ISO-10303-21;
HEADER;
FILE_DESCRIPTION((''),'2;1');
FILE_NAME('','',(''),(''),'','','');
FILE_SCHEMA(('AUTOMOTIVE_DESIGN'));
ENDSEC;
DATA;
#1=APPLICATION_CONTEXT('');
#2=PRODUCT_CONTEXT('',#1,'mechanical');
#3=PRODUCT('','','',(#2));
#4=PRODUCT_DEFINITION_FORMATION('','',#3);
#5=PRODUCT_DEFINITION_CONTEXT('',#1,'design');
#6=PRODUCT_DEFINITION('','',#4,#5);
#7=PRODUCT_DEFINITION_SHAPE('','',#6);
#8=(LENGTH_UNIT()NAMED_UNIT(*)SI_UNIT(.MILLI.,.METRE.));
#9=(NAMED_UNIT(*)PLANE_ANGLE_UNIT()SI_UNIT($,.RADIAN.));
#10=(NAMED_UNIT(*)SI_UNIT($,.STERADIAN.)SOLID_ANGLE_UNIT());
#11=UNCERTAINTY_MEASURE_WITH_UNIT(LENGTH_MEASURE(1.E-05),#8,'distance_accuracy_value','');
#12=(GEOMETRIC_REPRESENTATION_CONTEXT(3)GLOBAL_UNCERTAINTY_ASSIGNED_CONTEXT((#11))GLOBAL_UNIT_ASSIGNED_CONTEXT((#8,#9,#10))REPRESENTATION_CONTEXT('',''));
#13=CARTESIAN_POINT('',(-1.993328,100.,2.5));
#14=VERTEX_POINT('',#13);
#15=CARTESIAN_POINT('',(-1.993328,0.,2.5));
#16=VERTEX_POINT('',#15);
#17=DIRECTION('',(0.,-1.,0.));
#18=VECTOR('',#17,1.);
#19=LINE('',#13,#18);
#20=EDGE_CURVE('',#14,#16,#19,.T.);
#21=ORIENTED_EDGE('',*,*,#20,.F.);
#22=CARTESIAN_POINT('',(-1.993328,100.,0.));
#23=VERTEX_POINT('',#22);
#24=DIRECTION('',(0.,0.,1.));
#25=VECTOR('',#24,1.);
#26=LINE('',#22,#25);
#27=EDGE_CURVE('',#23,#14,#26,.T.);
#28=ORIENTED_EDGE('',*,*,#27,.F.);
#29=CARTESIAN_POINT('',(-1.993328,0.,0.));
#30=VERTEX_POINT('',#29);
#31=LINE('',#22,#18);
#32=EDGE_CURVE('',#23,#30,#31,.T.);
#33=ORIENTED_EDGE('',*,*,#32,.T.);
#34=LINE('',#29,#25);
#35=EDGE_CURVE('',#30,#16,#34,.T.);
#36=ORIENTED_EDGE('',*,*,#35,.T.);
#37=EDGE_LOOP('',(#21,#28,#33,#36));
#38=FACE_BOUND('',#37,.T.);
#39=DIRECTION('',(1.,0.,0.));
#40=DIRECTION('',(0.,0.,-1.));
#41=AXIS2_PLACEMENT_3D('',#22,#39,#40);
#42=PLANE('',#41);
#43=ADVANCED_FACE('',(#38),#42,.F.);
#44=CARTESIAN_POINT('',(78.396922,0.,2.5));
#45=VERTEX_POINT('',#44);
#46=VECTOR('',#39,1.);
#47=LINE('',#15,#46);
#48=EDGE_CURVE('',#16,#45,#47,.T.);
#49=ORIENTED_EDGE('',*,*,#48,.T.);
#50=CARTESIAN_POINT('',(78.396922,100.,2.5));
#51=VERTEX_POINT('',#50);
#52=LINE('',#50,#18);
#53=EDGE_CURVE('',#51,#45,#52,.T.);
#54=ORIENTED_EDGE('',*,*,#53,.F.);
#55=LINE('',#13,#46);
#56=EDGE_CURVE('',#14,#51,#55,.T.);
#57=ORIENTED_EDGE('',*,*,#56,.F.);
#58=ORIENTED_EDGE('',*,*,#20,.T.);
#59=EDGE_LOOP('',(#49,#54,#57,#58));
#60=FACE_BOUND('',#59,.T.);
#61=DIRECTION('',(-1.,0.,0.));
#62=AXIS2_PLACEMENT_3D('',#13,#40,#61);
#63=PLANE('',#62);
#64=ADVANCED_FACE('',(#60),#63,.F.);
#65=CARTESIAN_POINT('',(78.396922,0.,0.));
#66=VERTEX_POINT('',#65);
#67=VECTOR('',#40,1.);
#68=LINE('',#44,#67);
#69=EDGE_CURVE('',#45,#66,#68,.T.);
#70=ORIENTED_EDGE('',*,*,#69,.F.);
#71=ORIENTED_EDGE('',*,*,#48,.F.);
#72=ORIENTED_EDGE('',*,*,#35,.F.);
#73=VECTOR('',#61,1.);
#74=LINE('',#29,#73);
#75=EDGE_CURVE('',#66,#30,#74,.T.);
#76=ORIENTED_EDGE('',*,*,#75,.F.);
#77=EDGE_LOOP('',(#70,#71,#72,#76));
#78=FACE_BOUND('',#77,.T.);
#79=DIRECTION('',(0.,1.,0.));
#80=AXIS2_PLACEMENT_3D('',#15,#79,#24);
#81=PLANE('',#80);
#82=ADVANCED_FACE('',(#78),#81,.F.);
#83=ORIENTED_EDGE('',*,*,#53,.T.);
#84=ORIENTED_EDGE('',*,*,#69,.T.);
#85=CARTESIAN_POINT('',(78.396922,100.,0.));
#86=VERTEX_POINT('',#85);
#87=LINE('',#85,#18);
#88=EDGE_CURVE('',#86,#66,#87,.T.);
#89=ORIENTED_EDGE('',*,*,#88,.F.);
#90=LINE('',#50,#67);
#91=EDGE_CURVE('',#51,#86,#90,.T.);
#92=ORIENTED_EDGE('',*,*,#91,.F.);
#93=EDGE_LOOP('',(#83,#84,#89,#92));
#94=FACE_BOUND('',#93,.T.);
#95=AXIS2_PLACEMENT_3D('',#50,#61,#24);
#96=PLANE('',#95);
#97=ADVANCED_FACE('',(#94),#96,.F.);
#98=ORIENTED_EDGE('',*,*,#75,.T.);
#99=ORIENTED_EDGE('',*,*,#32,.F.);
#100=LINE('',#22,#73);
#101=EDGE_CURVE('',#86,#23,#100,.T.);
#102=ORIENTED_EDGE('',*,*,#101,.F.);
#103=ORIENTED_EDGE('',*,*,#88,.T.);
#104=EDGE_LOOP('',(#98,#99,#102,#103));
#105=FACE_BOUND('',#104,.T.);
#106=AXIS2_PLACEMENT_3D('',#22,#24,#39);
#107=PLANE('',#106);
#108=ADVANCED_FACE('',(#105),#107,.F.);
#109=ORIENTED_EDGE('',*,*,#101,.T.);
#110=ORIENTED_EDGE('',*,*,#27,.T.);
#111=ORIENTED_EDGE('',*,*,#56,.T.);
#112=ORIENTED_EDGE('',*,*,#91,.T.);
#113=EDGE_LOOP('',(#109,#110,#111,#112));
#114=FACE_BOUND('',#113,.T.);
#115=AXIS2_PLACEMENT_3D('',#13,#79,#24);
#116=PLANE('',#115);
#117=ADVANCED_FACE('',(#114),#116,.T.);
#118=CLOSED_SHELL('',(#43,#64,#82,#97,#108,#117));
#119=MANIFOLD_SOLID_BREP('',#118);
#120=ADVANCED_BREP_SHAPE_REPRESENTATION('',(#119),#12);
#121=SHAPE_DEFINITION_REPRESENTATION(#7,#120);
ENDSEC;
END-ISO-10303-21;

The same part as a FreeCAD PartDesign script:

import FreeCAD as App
import Part
import Sketcher
Q = App.Units.Quantity


def add_polygon(sketch, points):
    """Adds a closed chain of lines whose ends are joined by coincident constraints."""
    first, n = sketch.GeometryCount, len(points)
    for a, b in zip(points, points[1:] + points[:1]):
        sketch.addGeometry(Part.LineSegment(App.Vector(*a, 0), App.Vector(*b, 0)), False)
    for i in range(n):
        sketch.addConstraint(Sketcher.Constraint("Coincident", first + i, 2, first + (i + 1) % n, 1))

doc = App.newDocument("Part")
body = doc.addObject("PartDesign::Body", "Body")

# Sketch on XZ plane
sketch1 = doc.addObject("Sketcher::SketchObject", "Sketch")
body.addObject(sketch1)
sketch1.AttachmentSupport = (doc.XZ_Plane, [""])
sketch1.MapMode = "FlatFace"
add_polygon(sketch1, [(-1.993328, 0), (-1.993328, 2.5), (78.396922, 2.5), (78.396922, 0)])  # lines 0-3
sketch1.addConstraint(Sketcher.Constraint("Vertical", 0))
sketch1.addConstraint(Sketcher.Constraint("Horizontal", 1))
sketch1.addConstraint(Sketcher.Constraint("Vertical", 2))
sketch1.addConstraint(Sketcher.Constraint("Horizontal", 3))
sketch1.addConstraint(Sketcher.Constraint("PointOnObject", 2, 2, -1))
sketch1.addConstraint(Sketcher.Constraint("DistanceY", 0, 1, 0, 2, Q("2.5 mm")))
sketch1.addConstraint(Sketcher.Constraint("DistanceX", 1, 1, 1, 2, Q("80.39025 mm")))
sketch1.addConstraint(Sketcher.Constraint("DistanceX", 0, 2, -1, 1, Q("1.993328 mm")))
pad1 = doc.addObject("PartDesign::Pad", "Pad")
body.addObject(pad1)
pad1.Profile = sketch1
pad1.Length = 100
pad1.Reversed = True

doc.recompute()
